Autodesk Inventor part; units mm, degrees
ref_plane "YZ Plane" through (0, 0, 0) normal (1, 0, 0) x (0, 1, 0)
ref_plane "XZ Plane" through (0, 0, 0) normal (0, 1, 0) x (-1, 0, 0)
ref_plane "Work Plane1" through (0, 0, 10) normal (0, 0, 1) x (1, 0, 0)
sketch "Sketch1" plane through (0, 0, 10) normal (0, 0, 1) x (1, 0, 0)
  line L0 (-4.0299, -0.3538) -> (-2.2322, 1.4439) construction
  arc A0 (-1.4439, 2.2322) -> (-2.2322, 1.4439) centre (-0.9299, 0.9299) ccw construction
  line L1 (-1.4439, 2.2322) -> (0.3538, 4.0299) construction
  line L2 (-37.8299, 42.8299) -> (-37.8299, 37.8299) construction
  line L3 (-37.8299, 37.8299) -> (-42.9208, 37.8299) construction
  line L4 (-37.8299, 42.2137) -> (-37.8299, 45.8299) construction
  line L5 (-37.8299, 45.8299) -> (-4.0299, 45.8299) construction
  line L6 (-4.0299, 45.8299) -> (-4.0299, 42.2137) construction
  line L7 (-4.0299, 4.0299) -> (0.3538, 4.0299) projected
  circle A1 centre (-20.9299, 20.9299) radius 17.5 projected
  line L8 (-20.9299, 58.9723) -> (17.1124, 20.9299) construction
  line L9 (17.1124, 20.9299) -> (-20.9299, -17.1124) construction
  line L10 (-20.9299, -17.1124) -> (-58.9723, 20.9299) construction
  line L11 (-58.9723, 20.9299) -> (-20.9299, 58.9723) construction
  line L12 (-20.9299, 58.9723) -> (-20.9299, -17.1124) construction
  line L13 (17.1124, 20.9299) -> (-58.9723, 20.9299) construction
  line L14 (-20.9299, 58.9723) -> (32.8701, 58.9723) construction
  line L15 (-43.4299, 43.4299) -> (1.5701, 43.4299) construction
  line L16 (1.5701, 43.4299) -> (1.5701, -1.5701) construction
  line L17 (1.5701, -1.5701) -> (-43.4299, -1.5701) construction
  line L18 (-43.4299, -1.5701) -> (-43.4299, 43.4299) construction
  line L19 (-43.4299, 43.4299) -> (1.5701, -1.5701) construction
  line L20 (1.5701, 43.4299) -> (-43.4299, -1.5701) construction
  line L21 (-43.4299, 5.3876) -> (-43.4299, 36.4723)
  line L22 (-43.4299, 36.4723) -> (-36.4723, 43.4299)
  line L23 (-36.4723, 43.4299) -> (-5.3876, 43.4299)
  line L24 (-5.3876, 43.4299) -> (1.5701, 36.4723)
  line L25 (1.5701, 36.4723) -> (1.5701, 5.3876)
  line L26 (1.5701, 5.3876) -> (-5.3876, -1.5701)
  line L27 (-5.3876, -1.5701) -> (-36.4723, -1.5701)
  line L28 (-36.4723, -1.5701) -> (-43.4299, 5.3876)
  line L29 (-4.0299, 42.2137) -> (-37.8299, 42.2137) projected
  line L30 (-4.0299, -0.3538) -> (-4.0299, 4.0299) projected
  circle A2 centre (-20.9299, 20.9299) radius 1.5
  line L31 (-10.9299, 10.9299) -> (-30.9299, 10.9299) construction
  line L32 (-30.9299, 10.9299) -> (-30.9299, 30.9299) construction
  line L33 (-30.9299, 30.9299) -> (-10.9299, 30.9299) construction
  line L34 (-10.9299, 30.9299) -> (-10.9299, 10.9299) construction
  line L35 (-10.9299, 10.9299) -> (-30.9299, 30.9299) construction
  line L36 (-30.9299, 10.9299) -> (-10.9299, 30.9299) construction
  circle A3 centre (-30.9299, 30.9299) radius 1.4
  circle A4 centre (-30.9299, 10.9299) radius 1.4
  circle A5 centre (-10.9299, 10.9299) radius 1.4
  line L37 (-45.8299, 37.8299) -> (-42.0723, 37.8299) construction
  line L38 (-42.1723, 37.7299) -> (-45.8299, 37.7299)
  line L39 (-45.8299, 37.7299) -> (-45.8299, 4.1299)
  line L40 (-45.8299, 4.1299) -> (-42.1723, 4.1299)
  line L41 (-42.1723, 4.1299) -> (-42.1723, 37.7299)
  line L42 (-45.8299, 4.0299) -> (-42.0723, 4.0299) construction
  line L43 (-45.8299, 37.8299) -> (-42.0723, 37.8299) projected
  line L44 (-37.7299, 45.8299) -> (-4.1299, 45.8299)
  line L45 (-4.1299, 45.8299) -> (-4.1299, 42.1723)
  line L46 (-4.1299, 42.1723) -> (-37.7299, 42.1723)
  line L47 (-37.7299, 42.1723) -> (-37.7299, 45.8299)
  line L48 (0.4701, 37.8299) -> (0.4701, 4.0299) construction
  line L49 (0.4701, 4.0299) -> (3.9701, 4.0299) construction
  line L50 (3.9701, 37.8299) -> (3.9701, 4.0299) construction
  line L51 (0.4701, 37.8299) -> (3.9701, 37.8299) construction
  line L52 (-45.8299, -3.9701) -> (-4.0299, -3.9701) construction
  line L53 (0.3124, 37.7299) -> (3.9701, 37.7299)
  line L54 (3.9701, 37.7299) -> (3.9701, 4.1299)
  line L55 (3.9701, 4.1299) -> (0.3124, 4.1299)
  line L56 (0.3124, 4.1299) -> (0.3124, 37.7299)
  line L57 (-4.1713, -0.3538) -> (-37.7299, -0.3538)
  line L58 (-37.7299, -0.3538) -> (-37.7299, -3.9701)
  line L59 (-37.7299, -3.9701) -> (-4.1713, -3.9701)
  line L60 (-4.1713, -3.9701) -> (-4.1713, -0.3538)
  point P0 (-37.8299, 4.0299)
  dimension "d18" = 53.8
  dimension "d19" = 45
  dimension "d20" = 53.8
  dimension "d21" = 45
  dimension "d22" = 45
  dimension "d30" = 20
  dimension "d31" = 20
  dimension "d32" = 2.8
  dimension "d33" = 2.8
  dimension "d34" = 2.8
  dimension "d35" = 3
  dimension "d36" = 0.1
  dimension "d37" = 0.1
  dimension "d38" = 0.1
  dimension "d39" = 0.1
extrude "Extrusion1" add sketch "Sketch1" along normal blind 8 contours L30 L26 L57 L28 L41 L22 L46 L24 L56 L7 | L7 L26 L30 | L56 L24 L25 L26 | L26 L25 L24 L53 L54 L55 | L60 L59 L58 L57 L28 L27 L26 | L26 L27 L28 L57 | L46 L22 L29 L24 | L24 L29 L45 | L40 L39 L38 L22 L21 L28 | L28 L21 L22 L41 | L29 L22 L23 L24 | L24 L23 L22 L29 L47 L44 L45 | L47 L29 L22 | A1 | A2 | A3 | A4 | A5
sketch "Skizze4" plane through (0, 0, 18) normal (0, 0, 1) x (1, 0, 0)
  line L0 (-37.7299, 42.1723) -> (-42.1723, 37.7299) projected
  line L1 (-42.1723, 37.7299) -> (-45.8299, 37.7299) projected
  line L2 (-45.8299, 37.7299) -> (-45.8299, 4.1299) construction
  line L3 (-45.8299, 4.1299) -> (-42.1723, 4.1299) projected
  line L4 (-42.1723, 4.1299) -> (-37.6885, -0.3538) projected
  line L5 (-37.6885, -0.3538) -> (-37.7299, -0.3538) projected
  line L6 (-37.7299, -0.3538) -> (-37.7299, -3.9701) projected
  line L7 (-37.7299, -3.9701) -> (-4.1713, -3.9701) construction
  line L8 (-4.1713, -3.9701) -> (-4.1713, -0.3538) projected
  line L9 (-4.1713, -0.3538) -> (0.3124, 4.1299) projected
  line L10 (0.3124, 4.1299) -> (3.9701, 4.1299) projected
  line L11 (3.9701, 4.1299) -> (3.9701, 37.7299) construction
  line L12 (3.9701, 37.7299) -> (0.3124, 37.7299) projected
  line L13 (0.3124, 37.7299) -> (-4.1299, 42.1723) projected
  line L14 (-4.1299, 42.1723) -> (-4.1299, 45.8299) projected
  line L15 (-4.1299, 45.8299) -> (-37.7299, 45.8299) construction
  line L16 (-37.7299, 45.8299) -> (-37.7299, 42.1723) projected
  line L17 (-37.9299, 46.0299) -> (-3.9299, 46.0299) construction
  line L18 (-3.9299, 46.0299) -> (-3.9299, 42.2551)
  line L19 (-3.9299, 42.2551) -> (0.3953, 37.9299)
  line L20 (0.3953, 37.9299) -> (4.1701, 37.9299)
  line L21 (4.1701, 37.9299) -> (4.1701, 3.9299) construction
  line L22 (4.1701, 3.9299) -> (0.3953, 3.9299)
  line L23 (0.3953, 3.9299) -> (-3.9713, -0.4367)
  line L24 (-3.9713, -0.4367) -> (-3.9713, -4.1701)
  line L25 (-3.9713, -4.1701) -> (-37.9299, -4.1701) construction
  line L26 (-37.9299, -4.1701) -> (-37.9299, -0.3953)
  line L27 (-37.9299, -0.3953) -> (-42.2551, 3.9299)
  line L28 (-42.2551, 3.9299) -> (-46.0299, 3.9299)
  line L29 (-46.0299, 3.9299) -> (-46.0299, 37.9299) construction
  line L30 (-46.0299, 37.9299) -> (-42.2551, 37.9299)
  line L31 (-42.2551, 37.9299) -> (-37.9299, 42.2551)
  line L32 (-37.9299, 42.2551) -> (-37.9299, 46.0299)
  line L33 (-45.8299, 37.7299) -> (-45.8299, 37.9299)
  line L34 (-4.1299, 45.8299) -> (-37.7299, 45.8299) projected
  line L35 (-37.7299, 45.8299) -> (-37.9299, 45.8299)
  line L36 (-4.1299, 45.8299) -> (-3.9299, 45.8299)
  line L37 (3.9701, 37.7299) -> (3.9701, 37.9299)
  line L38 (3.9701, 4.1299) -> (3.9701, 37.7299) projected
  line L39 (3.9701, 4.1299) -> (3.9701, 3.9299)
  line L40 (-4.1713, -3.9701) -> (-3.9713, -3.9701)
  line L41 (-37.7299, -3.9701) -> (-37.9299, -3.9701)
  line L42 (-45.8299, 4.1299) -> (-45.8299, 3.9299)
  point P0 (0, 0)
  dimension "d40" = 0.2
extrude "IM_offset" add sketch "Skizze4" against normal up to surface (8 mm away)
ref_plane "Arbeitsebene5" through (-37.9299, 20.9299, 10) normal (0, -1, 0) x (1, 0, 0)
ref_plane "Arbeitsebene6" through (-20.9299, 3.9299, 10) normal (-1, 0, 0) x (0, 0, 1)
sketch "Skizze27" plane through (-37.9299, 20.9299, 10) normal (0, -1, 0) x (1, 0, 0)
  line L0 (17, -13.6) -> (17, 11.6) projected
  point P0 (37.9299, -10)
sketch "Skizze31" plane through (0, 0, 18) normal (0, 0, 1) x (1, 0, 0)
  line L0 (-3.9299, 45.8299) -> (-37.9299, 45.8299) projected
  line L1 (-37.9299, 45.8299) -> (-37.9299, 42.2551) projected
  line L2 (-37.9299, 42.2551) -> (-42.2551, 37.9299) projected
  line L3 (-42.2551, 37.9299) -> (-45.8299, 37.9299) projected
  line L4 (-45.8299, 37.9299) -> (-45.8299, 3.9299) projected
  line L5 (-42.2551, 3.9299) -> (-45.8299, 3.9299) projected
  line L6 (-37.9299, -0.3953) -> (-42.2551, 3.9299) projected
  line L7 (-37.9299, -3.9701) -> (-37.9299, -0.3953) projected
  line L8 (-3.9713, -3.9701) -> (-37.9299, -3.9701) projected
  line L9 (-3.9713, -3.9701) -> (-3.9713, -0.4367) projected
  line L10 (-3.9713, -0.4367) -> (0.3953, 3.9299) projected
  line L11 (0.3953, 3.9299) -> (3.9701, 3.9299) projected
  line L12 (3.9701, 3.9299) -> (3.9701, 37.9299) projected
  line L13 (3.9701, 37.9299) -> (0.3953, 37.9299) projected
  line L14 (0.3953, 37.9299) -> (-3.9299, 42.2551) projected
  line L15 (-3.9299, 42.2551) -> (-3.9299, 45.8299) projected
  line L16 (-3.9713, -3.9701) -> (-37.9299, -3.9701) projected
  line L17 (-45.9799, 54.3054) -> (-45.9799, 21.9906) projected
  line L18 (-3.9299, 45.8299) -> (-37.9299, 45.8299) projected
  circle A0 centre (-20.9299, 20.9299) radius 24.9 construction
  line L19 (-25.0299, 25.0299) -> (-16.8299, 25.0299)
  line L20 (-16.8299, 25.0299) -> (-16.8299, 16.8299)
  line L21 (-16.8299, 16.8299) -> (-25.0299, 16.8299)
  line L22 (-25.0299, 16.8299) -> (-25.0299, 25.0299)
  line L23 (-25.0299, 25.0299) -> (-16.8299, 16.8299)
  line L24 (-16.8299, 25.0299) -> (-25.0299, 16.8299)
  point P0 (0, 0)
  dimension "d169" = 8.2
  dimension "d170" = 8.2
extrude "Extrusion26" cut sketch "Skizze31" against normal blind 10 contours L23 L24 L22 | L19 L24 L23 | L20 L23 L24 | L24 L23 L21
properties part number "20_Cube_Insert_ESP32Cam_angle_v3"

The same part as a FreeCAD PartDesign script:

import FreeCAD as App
import Part
import Sketcher


def add_polygon(sketch, points):
    """Adds a closed chain of lines whose ends are joined by coincident constraints."""
    first, n = sketch.GeometryCount, len(points)
    for a, b in zip(points, points[1:] + points[:1]):
        sketch.addGeometry(Part.LineSegment(App.Vector(*a, 0), App.Vector(*b, 0)), False)
    for i in range(n):
        sketch.addConstraint(Sketcher.Constraint("Coincident", first + i, 2, first + (i + 1) % n, 1))

doc = App.newDocument("Part")
body = doc.addObject("PartDesign::Body", "Body")

sketch1 = body.newObject("Sketcher::SketchObject", "Sketch")
sketch1.AttachmentSupport = (doc.getObject("XY_Plane"), [""])
sketch1.MapMode = "FlatFace"
sketch1.AttachmentOffset = App.Placement(App.Vector(0, 0, 10), App.Rotation())
add_polygon(sketch1, [(-4.1713, -0.3538), (0.3124, 4.1299), (3.9701, 4.1299), (3.9701, 37.7299), (0.312441, 37.729941), (-4.1299, 42.1723), (-4.1299, 45.8299), (-37.7299, 45.8299), (-37.7299, 42.1723), (-42.1723, 37.7299), (-45.8299, 37.7299), (-45.8299, 4.1299), (-42.172259, 4.129941), (-37.688583, -0.3538), (-37.7299, -0.3538), (-37.7299, -3.9701), (-4.1713, -3.9701)])
sketch1.addConstraint([
    Sketcher.Constraint("Horizontal", 1),
    Sketcher.Constraint("Vertical", 2),
    Sketcher.Constraint("Horizontal", 3),
    Sketcher.Constraint("Vertical", 5),
    Sketcher.Constraint("Horizontal", 6),
    Sketcher.Constraint("Vertical", 7),
    Sketcher.Constraint("Horizontal", 9),
    Sketcher.Constraint("Vertical", 10),
    Sketcher.Constraint("Horizontal", 11),
    Sketcher.Constraint("Horizontal", 13),
    Sketcher.Constraint("Vertical", 14),
    Sketcher.Constraint("Horizontal", 15),
    Sketcher.Constraint("Vertical", 16),
    Sketcher.Constraint("Perpendicular", 0, 4),
    Sketcher.Constraint("Perpendicular", 4, 8),
    Sketcher.Constraint("Perpendicular", 8, 12),
    Sketcher.Constraint("Horizontal", 4, 2, 7, 2),
    Sketcher.Constraint("Horizontal", 3, 2, 8, 2),
    Sketcher.Constraint("Horizontal", 1, 2, 10, 2),
    Sketcher.Constraint("Horizontal", 13, 2, 16, 2),
    Sketcher.Constraint("Vertical", 0, 2, 3, 2),
    Sketcher.Constraint("Vertical", 8, 2, 11, 2),
    Sketcher.Constraint("Vertical", 7, 2, 13, 2),
    Sketcher.Constraint("Equal", 3, 9),
    Sketcher.Constraint("Equal", 6, 2),
    Sketcher.Constraint("Equal", 11, 5),
    Sketcher.Constraint("Equal", 4, 8),
    Sketcher.Constraint("DistanceX", 6, 2, 6, 1, 33.6),
    Sketcher.Constraint("DistanceX", 4, 2, 2, 2, 8.1),
    Sketcher.Constraint("DistanceY", 14, 2, 11, 2, 8.1),
    Sketcher.Constraint("DistanceY", -1, 1, 0, 2, 4.13),
    Sketcher.Constraint("DistanceX", -1, 1, 1, 2, 3.97),
    Sketcher.Constraint("Distance", 0, 6.341),
    Sketcher.Constraint("DistanceX", 1, 1, 1, 2, 3.6577),
])
pad1 = body.newObject("PartDesign::Pad", "Pad")
pad1.Profile = sketch1
pad1.Length = 8

sketch2 = body.newObject("Sketcher::SketchObject", "Sketch001")
sketch2.AttachmentSupport = (doc.getObject("XY_Plane"), [""])
sketch2.MapMode = "FlatFace"
sketch2.AttachmentOffset = App.Placement(App.Vector(0, 0, 18), App.Rotation())
add_polygon(sketch2, [(3.9701, 3.9299), (3.9701, 4.1299), (0.3124, 4.1299), (-4.1713, -0.3538), (-4.1713, -3.9701), (-3.9713, -3.9701), (-3.9713, -0.4367), (0.3953, 3.9299)])
add_polygon(sketch2, [(-3.9299, 45.8299), (-4.1299, 45.8299), (-4.1299, 42.1723), (0.3124, 37.7299), (3.9701, 37.7299), (3.9701, 37.9299), (0.3953, 37.9299), (-3.9299, 42.2551)])
add_polygon(sketch2, [(-42.1723, 37.7299), (-37.7299, 42.1723), (-37.7299, 45.8299), (-37.9299, 45.8299), (-37.9299, 42.2551), (-42.2551, 37.9299), (-45.8299, 37.9299), (-45.8299, 37.7299)])
add_polygon(sketch2, [(-42.1723, 4.1299), (-45.8299, 4.1299), (-45.8299, 3.9299), (-42.2551, 3.9299), (-37.9299, -0.3953), (-37.9299, -3.9701), (-37.7299, -3.9701), (-37.7299, -0.3538), (-37.6885, -0.3538)])
sketch2.addConstraint([
    Sketcher.Constraint("Vertical", 0),
    Sketcher.Constraint("Horizontal", 1),
    Sketcher.Constraint("Vertical", 3),
    Sketcher.Constraint("Horizontal", 4),
    Sketcher.Constraint("Vertical", 5),
    Sketcher.Constraint("Horizontal", 7),
    Sketcher.Constraint("Horizontal", 8),
    Sketcher.Constraint("Vertical", 9),
    Sketcher.Constraint("Horizontal", 11),
    Sketcher.Constraint("Vertical", 12),
    Sketcher.Constraint("Horizontal", 13),
    Sketcher.Constraint("Vertical", 15),
    Sketcher.Constraint("Vertical", 17),
    Sketcher.Constraint("Horizontal", 18),
    Sketcher.Constraint("Vertical", 19),
    Sketcher.Constraint("Horizontal", 21),
    Sketcher.Constraint("Vertical", 22),
    Sketcher.Constraint("Horizontal", 23),
    Sketcher.Constraint("Horizontal", 24),
    Sketcher.Constraint("Vertical", 25),
    Sketcher.Constraint("Horizontal", 26),
    Sketcher.Constraint("Vertical", 28),
    Sketcher.Constraint("Horizontal", 29),
    Sketcher.Constraint("Vertical", 30),
    Sketcher.Constraint("Horizontal", 31),
    Sketcher.Constraint("Parallel", 2, 6),
    Sketcher.Constraint("Perpendicular", 6, 10),
    Sketcher.Constraint("Parallel", 10, 14),
    Sketcher.Constraint("Perpendicular", 14, 16),
    Sketcher.Constraint("Parallel", 16, 20),
    Sketcher.Constraint("Perpendicular", 20, 27),
    Sketcher.Constraint("Parallel", 27, 32),
    Sketcher.Constraint("Horizontal", 9, 2, 16, 2),
    Sketcher.Constraint("Horizontal", 15, 2, 17, 2),
    Sketcher.Constraint("Horizontal", 14, 2, 19, 2),
    Sketcher.Constraint("Horizontal", 13, 2, 20, 2),
    Sketcher.Constraint("Horizontal", 11, 2, 22, 2),
    Sketcher.Constraint("Horizontal", 1, 2, 24, 2),
    Sketcher.Constraint("Horizontal", 7, 2, 25, 2),
    Sketcher.Constraint("Horizontal", 4, 2, 28, 2),
    Sketcher.Constraint("Horizontal", 2, 2, 30, 2),
    Sketcher.Constraint("Vertical", 1, 2, 10, 2),
    Sketcher.Constraint("Vertical", 7, 2, 11, 2),
    Sketcher.Constraint("Vertical", 6, 2, 13, 2),
    Sketcher.Constraint("Vertical", 22, 2, 24, 2),
    Sketcher.Constraint("Vertical", 20, 2, 26, 2),
    Sketcher.Constraint("Vertical", 19, 2, 27, 2),
    Sketcher.Constraint("Vertical", 17, 2, 29, 2),
    Sketcher.Constraint("Vertical", 23, 2, 32, 2),
    Sketcher.Constraint("Equal", 4, 8),
    Sketcher.Constraint("Equal", 8, 18),
    Sketcher.Constraint("Equal", 13, 21),
    Sketcher.Constraint("Equal", 11, 23),
    Sketcher.Constraint("Equal", 29, 0),
    Sketcher.Constraint("Equal", 24, 9),
    Sketcher.Constraint("Equal", 0, 12),
    Sketcher.Constraint("Equal", 19, 28),
    Sketcher.Constraint("DistanceX", 4, 1, 4, 2, 0.2),
    Sketcher.Constraint("DistanceX", 18, 2, 15, 2, 34.0),
    Sketcher.Constraint("DistanceY", 25, 2, 21, 2, 34.0),
    Sketcher.Constraint("DistanceY", 3, 2, 1, 2, 8.1),
    Sketcher.Constraint("DistanceX", -1, 1, 0, 2, 3.97),
    Sketcher.Constraint("DistanceY", -1, 1, 0, 2, 4.13),
    Sketcher.Constraint("Distance", 2, 6.341),
    Sketcher.Constraint("DistanceX", 1, 2, 1, 1, 3.6577),
    Sketcher.Constraint("DistanceX", 7, 1, 7, 2, 3.5748),
])
pad2 = body.newObject("PartDesign::Pad", "Pad001")
pad2.Profile = sketch2
pad2.Length = 8
pad2.Reversed = True

sketch3 = body.newObject("Sketcher::SketchObject", "Sketch002")
sketch3.AttachmentSupport = (doc.getObject("XY_Plane"), [""])
sketch3.MapMode = "FlatFace"
sketch3.AttachmentOffset = App.Placement(App.Vector(0, 0, 18), App.Rotation())
add_polygon(sketch3, [(-25.0299, 25.0299), (-25.0299, 16.8299), (-16.8299, 16.8299), (-16.8299, 25.0299)])
sketch3.addConstraint([
    Sketcher.Constraint("Vertical", 0),
    Sketcher.Constraint("Horizontal", 1),
    Sketcher.Constraint("Vertical", 2),
    Sketcher.Constraint("Horizontal", 3),
    Sketcher.Constraint("Equal", 3, 0),
    Sketcher.Constraint("DistanceX", 1, 1, 1, 2, 8.2),
    Sketcher.Constraint("DistanceX", 0, 2, -1, 1, 25.03),
    Sketcher.Constraint("DistanceY", -1, 1, 0, 2, 16.83),
])
pocket1 = body.newObject("PartDesign::Pocket", "Pocket")
pocket1.Profile = sketch3
pocket1.Length = 10

doc.recompute()
